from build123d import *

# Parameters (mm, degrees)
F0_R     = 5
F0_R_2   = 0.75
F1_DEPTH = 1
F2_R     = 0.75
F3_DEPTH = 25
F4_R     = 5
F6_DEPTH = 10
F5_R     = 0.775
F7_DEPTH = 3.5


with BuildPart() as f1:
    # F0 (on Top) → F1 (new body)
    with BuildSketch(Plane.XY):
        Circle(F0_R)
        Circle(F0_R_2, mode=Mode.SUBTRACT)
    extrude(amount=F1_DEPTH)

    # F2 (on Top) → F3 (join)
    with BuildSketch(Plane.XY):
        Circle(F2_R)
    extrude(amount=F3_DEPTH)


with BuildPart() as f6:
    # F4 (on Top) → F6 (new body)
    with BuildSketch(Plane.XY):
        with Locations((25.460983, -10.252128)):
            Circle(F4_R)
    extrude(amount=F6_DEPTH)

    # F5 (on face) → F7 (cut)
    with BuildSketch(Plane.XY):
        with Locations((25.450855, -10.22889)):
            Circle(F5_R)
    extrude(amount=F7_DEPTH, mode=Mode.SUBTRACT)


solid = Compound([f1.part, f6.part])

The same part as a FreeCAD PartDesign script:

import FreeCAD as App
import Part
import Sketcher

V = App.Vector

doc = App.newDocument("Part")
body = doc.addObject("PartDesign::Body", "Body")

# Sketch on XY plane
sketch1 = body.newObject("Sketcher::SketchObject", "Sketch")
sketch1.AttachmentSupport = (doc.getObject("XY_Plane"), [""])
sketch1.MapMode = "FlatFace"
sketch1.addGeometry(Part.Circle(V(0, 0, 0), V(0, 0, 1), 5), False)
sketch1.addGeometry(Part.Circle(V(0, 0, 0), V(0, 0, 1), 0.8), False)
sketch1.addConstraint(Sketcher.Constraint("Coincident", 0, 3, -1, 1))
sketch1.addConstraint(Sketcher.Constraint("Coincident", 1, 3, -1, 1))
sketch1.addConstraint(Sketcher.Constraint("Diameter", 0, 10.0))
sketch1.addConstraint(Sketcher.Constraint("Diameter", 1, 1.5))
pad1 = body.newObject("PartDesign::Pad", "Pad")
pad1.Profile = sketch1
pad1.Length = 1

# Sketch on XY plane
sketch2 = body.newObject("Sketcher::SketchObject", "Sketch001")
sketch2.AttachmentSupport = (doc.getObject("XY_Plane"), [""])
sketch2.MapMode = "FlatFace"
sketch2.addGeometry(Part.Circle(V(0, 0, 0), V(0, 0, 1), 0.8), False)
sketch2.addConstraint(Sketcher.Constraint("Coincident", 0, 3, -1, 1))
sketch2.addConstraint(Sketcher.Constraint("Diameter", 0, 1.5))
pad2 = body.newObject("PartDesign::Pad", "Pad001")
pad2.Profile = sketch2
pad2.Length = 25
body2 = doc.addObject("PartDesign::Body", "Body001")

# Sketch on XY plane
sketch3 = body2.newObject("Sketcher::SketchObject", "Sketch002")
sketch3.AttachmentSupport = (doc.getObject("XY_Plane001"), [""])
sketch3.MapMode = "FlatFace"
sketch3.addGeometry(Part.Circle(V(25, -10, 0), V(0, 0, 1), 5), False)
sketch3.addConstraint(Sketcher.Constraint("Diameter", 0, 10.0))
sketch3.addConstraint(Sketcher.Constraint("DistanceY", 0, 3, -1, 1, 10.252128))
sketch3.addConstraint(Sketcher.Constraint("DistanceX", -1, 1, 0, 3, 25.460983))
pad3 = body2.newObject("PartDesign::Pad", "Pad002")
pad3.Profile = sketch3
pad3.Length = 10

# Sketch on XY plane
sketch4 = body2.newObject("Sketcher::SketchObject", "Sketch003")
sketch4.AttachmentSupport = (doc.getObject("XY_Plane001"), [""])
sketch4.MapMode = "FlatFace"
sketch4.addGeometry(Part.Circle(V(25.5, -10.2, 0), V(0, 0, 1), 0.8), False)
sketch4.addConstraint(Sketcher.Constraint("Diameter", 0, 1.55))
sketch4.addConstraint(Sketcher.Constraint("DistanceY", 0, 3, -1, 1, 10.22889))
sketch4.addConstraint(Sketcher.Constraint("DistanceX", -1, 1, 0, 3, 25.450855))
pocket1 = body2.newObject("PartDesign::Pocket", "Pocket")
pocket1.Profile = sketch4
pocket1.Length = 3.5
pocket1.Reversed = True

doc.recompute()
